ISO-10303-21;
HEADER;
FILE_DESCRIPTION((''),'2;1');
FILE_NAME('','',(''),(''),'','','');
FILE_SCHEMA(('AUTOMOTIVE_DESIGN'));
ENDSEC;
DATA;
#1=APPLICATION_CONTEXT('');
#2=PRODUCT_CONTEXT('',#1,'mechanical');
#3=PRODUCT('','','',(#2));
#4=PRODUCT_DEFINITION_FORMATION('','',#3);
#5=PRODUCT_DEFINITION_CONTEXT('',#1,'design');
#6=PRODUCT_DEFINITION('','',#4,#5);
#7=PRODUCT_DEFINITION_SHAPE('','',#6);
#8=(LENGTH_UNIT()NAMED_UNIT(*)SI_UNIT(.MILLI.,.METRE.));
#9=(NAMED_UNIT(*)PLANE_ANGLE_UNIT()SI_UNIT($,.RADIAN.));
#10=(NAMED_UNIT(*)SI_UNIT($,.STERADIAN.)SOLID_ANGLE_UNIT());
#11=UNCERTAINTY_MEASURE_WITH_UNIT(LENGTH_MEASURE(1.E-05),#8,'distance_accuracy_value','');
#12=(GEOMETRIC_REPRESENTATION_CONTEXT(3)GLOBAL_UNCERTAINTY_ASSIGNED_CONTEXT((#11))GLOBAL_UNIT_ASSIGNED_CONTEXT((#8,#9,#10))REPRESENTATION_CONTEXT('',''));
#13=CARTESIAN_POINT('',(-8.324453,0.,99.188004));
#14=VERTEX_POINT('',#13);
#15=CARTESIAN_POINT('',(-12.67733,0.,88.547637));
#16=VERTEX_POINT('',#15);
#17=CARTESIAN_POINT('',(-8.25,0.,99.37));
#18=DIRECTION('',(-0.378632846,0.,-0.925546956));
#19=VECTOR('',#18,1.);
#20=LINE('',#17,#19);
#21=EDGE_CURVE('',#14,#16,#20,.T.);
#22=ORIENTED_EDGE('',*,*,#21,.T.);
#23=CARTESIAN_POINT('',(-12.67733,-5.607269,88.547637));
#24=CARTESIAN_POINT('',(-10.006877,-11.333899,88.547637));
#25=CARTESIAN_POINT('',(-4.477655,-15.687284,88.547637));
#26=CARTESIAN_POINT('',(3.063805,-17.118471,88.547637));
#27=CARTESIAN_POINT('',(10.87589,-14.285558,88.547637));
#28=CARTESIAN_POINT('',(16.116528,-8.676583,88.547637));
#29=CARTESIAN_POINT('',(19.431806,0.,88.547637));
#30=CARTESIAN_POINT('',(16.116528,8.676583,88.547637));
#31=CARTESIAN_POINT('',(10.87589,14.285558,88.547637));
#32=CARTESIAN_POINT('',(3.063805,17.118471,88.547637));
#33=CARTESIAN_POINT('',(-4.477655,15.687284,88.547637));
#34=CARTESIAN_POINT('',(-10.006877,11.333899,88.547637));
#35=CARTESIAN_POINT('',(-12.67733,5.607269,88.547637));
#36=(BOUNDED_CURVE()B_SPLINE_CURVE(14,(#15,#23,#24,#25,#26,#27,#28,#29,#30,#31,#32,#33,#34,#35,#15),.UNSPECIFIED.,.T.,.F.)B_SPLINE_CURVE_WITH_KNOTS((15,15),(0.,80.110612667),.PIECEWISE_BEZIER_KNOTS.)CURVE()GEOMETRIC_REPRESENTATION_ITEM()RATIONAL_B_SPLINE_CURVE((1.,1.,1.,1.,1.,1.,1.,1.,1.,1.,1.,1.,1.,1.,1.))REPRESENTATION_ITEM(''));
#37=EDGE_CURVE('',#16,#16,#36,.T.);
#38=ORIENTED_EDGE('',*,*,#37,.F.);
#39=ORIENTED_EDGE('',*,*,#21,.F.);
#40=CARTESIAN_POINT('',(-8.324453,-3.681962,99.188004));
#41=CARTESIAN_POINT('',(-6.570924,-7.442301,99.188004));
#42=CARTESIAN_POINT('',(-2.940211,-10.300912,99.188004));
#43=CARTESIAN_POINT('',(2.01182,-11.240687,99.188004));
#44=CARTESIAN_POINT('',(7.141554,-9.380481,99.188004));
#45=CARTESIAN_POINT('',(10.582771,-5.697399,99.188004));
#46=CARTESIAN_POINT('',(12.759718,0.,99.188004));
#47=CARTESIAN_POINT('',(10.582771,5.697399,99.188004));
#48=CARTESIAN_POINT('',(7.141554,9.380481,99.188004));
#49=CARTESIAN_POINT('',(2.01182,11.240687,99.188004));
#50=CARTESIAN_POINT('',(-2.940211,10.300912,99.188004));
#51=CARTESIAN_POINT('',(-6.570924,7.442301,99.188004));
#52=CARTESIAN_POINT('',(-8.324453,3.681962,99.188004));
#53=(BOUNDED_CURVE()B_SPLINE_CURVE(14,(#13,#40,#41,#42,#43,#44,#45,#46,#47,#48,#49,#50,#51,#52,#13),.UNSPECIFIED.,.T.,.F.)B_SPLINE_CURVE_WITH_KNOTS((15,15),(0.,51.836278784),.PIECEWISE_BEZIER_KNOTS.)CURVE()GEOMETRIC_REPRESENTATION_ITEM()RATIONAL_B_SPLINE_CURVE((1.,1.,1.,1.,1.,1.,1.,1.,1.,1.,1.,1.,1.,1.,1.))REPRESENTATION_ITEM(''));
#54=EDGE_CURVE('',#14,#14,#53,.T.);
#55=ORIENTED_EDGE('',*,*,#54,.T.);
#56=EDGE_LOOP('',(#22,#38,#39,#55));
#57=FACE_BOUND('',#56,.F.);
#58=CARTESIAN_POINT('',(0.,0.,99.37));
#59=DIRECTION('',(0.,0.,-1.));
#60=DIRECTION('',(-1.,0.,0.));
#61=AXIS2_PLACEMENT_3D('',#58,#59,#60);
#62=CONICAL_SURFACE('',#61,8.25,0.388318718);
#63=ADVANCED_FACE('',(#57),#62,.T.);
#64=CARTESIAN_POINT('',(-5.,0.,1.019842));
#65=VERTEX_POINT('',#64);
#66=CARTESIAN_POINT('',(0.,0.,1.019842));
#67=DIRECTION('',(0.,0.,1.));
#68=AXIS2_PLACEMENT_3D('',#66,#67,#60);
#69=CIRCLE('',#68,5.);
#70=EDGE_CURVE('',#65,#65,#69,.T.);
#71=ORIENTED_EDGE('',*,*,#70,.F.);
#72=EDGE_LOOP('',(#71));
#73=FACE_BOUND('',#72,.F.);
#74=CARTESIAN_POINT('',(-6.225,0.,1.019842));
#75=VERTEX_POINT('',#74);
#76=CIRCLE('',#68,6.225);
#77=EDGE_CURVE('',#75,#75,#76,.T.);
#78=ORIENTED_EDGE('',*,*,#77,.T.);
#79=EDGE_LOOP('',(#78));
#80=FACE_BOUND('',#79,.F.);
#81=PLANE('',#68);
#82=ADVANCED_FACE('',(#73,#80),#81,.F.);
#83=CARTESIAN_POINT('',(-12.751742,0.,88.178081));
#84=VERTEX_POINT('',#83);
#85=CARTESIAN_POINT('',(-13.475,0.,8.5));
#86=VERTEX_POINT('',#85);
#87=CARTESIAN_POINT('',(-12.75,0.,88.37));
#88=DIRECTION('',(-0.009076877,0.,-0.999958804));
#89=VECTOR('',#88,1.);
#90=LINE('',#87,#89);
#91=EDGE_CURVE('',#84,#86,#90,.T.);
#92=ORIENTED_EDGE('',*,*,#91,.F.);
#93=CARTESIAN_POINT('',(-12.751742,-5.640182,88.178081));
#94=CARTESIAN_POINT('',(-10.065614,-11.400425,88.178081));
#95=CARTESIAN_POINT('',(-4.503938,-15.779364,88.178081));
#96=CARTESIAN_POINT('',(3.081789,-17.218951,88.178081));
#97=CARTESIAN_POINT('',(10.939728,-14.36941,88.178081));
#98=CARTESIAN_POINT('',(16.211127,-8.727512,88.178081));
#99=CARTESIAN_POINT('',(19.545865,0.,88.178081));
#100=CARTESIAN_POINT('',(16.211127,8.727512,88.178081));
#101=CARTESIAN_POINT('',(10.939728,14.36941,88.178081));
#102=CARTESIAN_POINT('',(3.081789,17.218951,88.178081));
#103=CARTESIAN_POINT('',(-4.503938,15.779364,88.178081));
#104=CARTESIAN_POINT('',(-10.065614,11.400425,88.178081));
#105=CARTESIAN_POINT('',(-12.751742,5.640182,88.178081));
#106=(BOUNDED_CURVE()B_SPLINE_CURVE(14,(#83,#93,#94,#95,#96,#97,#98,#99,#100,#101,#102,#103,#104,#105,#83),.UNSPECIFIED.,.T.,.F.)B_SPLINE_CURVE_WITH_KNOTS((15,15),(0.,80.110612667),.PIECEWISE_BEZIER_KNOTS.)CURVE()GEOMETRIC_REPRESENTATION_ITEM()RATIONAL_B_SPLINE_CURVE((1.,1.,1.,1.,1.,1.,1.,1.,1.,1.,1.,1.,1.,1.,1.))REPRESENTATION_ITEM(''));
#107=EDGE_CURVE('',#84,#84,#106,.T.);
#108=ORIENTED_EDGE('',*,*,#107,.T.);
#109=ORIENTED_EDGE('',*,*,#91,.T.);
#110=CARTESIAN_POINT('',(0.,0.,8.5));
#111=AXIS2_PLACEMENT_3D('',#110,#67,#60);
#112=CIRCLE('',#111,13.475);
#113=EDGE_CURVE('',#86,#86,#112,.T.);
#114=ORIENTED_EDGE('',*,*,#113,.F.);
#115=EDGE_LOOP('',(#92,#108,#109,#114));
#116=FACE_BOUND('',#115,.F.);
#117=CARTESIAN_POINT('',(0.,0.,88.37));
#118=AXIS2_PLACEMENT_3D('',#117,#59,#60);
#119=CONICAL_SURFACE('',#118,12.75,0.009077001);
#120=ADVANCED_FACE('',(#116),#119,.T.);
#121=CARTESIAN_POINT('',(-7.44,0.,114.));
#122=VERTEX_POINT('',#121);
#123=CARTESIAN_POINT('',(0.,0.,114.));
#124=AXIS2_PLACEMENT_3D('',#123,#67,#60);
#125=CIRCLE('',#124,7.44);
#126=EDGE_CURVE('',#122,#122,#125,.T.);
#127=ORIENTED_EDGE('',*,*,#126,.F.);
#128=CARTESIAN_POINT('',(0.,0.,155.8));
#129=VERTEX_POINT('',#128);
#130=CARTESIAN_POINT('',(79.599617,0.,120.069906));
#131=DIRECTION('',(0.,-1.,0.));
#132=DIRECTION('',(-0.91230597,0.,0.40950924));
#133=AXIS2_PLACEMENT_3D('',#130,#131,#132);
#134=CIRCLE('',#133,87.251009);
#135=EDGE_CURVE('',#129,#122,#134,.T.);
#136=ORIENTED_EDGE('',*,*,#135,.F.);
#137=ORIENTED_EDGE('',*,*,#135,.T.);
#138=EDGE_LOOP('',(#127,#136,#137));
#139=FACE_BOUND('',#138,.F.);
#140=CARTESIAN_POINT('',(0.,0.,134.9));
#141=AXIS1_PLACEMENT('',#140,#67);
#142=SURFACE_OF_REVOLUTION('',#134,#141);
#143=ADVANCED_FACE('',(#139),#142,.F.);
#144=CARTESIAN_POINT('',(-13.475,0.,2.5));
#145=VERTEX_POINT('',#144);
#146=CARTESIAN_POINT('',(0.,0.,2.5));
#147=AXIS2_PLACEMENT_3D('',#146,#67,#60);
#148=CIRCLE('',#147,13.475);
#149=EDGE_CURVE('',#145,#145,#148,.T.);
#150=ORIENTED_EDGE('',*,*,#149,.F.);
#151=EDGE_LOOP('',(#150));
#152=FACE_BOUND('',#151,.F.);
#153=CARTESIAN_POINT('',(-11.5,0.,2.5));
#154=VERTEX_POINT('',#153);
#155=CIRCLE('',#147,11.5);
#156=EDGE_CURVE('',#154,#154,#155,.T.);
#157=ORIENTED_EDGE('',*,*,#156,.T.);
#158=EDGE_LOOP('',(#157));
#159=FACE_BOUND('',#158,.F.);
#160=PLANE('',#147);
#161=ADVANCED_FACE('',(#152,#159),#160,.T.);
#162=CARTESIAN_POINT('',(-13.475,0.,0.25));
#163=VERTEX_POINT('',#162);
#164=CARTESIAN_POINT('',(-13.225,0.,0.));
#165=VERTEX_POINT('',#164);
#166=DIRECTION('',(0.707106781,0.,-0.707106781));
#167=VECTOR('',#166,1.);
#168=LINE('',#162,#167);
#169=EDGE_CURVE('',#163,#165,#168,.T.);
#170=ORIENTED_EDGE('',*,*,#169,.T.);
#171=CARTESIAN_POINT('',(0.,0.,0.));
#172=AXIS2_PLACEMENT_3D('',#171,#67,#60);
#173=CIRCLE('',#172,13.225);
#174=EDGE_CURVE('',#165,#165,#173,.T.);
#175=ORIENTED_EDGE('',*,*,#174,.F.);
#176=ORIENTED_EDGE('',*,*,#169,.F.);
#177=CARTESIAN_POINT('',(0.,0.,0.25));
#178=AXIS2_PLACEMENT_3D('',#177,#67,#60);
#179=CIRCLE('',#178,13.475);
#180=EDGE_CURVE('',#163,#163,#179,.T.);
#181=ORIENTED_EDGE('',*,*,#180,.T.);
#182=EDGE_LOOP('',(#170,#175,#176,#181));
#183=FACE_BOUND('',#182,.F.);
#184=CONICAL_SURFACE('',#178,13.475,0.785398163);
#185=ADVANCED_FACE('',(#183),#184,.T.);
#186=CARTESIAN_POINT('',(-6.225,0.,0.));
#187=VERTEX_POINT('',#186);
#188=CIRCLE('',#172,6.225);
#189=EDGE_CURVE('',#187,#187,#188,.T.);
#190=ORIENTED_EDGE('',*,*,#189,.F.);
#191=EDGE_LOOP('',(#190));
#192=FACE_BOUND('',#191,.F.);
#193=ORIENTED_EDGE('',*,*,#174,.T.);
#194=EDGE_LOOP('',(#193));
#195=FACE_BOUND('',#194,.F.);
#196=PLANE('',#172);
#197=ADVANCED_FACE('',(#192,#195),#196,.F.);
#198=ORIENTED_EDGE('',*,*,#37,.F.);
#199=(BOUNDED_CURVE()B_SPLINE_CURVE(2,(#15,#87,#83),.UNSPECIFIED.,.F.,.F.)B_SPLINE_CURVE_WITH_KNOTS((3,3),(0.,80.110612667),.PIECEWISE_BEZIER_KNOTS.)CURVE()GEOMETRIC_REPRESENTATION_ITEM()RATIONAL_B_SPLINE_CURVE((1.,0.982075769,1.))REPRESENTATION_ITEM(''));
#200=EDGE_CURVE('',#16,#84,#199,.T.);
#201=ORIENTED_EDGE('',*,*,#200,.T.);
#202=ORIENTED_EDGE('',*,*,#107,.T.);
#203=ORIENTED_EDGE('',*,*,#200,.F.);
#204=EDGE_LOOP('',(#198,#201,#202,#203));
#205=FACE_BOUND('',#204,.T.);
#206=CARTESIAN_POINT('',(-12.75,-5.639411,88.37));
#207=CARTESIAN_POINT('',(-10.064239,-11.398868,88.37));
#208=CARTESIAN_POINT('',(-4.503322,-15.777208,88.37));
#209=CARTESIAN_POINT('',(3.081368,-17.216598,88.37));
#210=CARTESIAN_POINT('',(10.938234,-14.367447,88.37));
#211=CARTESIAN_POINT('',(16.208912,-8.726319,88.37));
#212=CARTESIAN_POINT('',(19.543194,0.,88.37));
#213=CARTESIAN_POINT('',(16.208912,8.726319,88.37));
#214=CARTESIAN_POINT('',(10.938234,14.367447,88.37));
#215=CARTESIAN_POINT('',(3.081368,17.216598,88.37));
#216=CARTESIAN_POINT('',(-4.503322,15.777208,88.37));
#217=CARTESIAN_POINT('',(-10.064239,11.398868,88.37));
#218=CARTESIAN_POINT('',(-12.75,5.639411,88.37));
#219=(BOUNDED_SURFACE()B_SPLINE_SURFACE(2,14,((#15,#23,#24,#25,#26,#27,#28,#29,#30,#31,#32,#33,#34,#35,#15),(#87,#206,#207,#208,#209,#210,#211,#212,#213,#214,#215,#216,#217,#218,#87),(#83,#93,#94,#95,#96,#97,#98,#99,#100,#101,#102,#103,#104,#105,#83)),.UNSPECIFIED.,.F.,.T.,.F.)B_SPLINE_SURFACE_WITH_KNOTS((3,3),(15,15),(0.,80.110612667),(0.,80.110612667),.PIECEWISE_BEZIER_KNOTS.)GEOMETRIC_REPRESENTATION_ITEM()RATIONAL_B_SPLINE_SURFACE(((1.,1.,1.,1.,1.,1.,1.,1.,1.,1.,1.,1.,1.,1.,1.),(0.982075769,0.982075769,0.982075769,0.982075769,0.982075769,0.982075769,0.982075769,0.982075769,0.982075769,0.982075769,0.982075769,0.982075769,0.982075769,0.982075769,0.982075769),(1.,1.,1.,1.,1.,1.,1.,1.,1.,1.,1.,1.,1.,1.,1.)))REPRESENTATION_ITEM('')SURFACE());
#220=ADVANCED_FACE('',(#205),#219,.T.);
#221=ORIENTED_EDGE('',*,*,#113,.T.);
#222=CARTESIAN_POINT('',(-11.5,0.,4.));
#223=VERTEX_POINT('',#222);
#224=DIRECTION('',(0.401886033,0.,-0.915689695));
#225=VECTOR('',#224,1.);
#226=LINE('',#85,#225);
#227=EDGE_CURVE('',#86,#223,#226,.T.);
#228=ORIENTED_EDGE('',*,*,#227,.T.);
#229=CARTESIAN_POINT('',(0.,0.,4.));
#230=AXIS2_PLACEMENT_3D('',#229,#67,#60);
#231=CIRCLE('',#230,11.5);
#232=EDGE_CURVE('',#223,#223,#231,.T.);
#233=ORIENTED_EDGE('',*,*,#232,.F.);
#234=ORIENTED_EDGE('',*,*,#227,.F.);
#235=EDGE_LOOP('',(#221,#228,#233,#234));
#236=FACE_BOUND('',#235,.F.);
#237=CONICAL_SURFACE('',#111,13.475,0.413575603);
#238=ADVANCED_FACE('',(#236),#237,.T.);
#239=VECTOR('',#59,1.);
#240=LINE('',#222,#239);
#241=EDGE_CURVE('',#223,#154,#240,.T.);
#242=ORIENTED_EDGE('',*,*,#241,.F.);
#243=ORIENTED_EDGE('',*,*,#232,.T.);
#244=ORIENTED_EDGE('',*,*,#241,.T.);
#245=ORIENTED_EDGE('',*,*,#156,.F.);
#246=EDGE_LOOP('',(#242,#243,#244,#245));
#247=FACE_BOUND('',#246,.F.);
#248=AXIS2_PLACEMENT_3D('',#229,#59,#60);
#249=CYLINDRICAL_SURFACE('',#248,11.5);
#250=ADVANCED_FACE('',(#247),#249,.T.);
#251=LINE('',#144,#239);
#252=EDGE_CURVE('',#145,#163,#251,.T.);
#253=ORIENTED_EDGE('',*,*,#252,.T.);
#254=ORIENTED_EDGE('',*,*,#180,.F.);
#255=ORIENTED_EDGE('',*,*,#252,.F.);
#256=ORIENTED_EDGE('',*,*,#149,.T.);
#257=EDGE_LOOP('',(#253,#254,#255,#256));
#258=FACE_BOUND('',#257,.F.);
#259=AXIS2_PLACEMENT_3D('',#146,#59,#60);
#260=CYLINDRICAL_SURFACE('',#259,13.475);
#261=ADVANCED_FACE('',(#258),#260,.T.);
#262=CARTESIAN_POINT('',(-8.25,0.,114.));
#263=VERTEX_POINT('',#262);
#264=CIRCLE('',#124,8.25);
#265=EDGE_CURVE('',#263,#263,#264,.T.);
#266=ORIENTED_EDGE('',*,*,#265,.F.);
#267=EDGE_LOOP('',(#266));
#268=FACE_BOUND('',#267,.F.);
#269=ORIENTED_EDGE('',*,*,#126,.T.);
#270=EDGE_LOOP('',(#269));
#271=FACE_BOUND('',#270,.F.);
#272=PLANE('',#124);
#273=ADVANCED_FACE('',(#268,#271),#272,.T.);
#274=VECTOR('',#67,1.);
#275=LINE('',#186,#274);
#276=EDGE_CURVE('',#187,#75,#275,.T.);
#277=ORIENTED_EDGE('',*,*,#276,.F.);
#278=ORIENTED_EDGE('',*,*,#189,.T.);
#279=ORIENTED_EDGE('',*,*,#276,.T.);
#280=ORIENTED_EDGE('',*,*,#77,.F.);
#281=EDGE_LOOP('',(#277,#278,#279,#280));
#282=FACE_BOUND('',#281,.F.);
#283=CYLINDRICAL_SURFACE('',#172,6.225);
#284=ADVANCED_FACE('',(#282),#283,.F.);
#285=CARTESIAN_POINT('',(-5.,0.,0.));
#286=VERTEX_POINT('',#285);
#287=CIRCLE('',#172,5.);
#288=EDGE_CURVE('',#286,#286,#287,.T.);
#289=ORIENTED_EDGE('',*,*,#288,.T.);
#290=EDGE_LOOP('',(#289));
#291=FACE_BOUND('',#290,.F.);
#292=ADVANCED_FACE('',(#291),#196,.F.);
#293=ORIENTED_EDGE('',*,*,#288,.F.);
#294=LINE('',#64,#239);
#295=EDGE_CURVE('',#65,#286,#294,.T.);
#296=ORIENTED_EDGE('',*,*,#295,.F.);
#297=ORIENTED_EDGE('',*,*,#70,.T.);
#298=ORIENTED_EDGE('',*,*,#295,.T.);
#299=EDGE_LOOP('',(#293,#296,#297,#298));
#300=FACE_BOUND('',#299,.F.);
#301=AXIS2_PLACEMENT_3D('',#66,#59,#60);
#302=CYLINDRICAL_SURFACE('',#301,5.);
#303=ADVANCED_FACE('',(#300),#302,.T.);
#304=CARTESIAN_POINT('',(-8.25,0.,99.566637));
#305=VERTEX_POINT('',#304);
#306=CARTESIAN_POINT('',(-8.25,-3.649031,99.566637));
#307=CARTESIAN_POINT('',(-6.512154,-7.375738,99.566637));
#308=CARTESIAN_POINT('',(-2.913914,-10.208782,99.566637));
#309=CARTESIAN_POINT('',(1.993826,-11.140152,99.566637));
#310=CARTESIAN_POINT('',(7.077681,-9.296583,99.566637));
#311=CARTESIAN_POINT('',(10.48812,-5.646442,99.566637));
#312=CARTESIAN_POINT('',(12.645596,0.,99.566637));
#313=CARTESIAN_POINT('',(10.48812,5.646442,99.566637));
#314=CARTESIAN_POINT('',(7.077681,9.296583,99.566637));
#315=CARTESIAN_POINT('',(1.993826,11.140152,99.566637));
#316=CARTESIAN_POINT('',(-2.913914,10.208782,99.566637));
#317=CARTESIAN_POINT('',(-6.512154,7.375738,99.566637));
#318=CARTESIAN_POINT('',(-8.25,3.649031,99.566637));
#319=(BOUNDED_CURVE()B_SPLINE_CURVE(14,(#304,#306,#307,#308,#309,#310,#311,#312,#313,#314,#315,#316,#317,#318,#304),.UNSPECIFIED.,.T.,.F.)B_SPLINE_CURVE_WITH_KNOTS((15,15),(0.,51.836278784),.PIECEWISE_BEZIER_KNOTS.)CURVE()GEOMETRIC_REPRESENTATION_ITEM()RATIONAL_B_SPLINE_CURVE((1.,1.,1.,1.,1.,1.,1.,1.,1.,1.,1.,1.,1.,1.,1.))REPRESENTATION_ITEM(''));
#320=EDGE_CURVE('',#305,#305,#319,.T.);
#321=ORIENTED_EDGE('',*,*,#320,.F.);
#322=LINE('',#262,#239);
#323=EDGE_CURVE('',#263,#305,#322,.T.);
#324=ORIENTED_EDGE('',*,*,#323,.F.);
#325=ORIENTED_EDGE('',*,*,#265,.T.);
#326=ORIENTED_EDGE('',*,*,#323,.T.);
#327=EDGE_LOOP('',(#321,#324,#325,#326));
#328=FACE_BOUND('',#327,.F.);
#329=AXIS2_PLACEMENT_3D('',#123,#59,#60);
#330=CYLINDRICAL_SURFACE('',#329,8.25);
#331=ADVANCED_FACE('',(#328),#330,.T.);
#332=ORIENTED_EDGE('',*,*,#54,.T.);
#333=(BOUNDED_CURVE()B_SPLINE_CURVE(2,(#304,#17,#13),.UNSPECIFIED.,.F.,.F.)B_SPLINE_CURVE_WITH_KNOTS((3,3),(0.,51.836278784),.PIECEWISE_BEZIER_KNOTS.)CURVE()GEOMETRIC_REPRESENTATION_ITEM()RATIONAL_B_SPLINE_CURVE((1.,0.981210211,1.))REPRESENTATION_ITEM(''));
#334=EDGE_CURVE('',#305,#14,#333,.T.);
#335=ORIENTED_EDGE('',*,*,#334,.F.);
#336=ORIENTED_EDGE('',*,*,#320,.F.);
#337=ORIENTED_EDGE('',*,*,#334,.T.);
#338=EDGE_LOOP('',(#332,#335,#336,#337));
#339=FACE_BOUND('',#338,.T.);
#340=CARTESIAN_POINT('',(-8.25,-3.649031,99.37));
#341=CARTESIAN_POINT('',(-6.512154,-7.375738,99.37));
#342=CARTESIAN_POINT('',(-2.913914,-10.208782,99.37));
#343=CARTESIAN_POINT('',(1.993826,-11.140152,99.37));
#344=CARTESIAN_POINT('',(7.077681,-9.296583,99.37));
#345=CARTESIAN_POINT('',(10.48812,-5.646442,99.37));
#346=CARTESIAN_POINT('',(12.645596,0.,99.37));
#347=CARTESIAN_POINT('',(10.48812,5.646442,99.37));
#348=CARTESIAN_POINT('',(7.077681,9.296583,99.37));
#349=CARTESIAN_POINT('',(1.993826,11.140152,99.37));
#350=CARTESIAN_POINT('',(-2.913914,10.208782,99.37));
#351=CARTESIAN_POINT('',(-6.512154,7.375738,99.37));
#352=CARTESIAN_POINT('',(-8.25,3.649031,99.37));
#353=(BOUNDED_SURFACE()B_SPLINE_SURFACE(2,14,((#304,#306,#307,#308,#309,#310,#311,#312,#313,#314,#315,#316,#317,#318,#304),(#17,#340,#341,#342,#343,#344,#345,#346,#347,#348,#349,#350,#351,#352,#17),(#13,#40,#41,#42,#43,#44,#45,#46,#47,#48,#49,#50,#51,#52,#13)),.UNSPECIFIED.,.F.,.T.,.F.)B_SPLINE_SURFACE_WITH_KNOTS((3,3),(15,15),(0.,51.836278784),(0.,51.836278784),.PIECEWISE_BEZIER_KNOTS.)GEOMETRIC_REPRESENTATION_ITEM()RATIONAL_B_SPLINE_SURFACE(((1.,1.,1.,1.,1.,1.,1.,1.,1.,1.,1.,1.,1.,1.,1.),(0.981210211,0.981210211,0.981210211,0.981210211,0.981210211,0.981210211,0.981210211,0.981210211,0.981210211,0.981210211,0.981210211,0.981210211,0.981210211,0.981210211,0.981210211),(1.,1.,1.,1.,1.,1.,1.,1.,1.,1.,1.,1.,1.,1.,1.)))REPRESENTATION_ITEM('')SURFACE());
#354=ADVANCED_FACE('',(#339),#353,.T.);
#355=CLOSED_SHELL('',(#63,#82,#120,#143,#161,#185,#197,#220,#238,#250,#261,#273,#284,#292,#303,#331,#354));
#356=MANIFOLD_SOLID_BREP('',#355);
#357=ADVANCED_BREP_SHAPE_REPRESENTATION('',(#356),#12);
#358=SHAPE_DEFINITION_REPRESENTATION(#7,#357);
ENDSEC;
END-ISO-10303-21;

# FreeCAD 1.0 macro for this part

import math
import FreeCAD as App
import Part
import Sketcher

V = App.Vector
Q = App.Units.Quantity


def edges_at(feature, points):
    """Names of the edges that pass closest to the given points."""
    edges = feature.Shape.Edges
    near = lambda p: min(range(len(edges)), key=lambda i: edges[i].distToShape(Part.Vertex(*p))[0])
    return sorted({f"Edge{near(p) + 1}" for p in points})

doc = App.newDocument("Part")
body = doc.addObject("PartDesign::Body", "Body")

sketch1 = body.newObject("Sketcher::SketchObject", "Sketch")
sketch1.AttachmentSupport = (doc.getObject("XZ_Plane"), [""])
sketch1.MapMode = "FlatFace"
sketch1.addGeometry([
    Part.LineSegment(V(-13.475, 0.25, 0), V(-13.225, 0, 0)),
    Part.LineSegment(V(-13.225, 0, 0), V(-6.225, 0, 0)),
    Part.LineSegment(V(-6.225, 0, 0), V(-6.225, 1.019842, 0)),
    Part.LineSegment(V(-6.225, 1.019842, 0), V(-5, 1.019842, 0)),
    Part.LineSegment(V(-5, 1.019842, 0), V(-5, 0, 0)),
    Part.LineSegment(V(-5, 0, 0), V(0, 0, 0)),
    Part.LineSegment(V(0, 0, 0), V(0, 155.8, 0)),
    Part.ArcOfCircle(Part.Circle(V(79.599617, 120.069906, 0), V(0, 0, 1), 87.251009), math.radians(155.82599), math.radians(183.989193)),
    Part.LineSegment(V(-7.44, 114, 0), V(-8.25, 114, 0)),
    Part.LineSegment(V(-8.25, 114, 0), V(-8.25, 99.37, 0)),
    Part.LineSegment(V(-8.25, 99.37, 0), V(-12.75, 88.37, 0)),
    Part.LineSegment(V(-12.75, 88.37, 0), V(-13.475, 8.5, 0)),
    Part.LineSegment(V(-13.475, 8.5, 0), V(-11.5, 4, 0)),
    Part.LineSegment(V(-11.5, 4, 0), V(-11.5, 2.5, 0)),
    Part.LineSegment(V(-11.5, 2.5, 0), V(-13.475, 2.5, 0)),
    Part.LineSegment(V(-13.475, 2.5, 0), V(-13.475, 0.25, 0)),
], False)
sketch1.addConstraint([
    Sketcher.Constraint("Coincident", 0, 2, 1, 1),
    Sketcher.Constraint("Coincident", 1, 2, 2, 1),
    Sketcher.Constraint("Coincident", 2, 2, 3, 1),
    Sketcher.Constraint("Coincident", 3, 2, 4, 1),
    Sketcher.Constraint("Coincident", 4, 2, 5, 1),
    Sketcher.Constraint("Coincident", 5, 2, 6, 1),
    Sketcher.Constraint("Coincident", 6, 2, 7, 1),
    Sketcher.Constraint("Coincident", 7, 2, 8, 1),
    Sketcher.Constraint("Coincident", 8, 2, 9, 1),
    Sketcher.Constraint("Coincident", 9, 2, 10, 1),
    Sketcher.Constraint("Coincident", 10, 2, 11, 1),
    Sketcher.Constraint("Coincident", 11, 2, 12, 1),
    Sketcher.Constraint("Coincident", 12, 2, 13, 1),
    Sketcher.Constraint("Coincident", 13, 2, 14, 1),
    Sketcher.Constraint("Coincident", 14, 2, 15, 1),
    Sketcher.Constraint("Coincident", 15, 2, 0, 1),
    Sketcher.Constraint("Horizontal", 1),
    Sketcher.Constraint("Vertical", 2),
    Sketcher.Constraint("Horizontal", 3),
    Sketcher.Constraint("Vertical", 4),
    Sketcher.Constraint("Horizontal", 5),
    Sketcher.Constraint("Vertical", 6),
    Sketcher.Constraint("Horizontal", 8),
    Sketcher.Constraint("Vertical", 9),
    Sketcher.Constraint("Vertical", 13),
    Sketcher.Constraint("Horizontal", 14),
    Sketcher.Constraint("Vertical", 15),
    Sketcher.Constraint("Coincident", 5, 2, -1, 1),
    Sketcher.Constraint("PointOnObject", 0, 2, -1),
    Sketcher.Constraint("Vertical", 11, 2, 14, 2),
    Sketcher.Constraint("DistanceX", 1, 1, 1, 2, 7.0),
    Sketcher.Constraint("DistanceX", 5, 1, 5, 2, 5.0),
    Sketcher.Constraint("Angle", 0, Q("-45 deg")),
    Sketcher.Constraint("DistanceY", 6, 1, 6, 2, 155.8),
    Sketcher.Constraint("DistanceY", 13, 2, 13, 1, 1.5),
    Sketcher.Constraint("DistanceY", -1, 1, 7, 2, 114.0),
    Sketcher.Constraint("DistanceY", -1, 1, 12, 2, 4.0),
    Sketcher.Constraint("DistanceY", 10, 2, 9, 2, 11.0),
    Sketcher.Constraint("DistanceY", 13, 2, 11, 2, 6.0),
    Sketcher.Constraint("DistanceX", 8, 2, 8, 1, 0.81),
    Sketcher.Constraint("DistanceY", 9, 2, 9, 1, 14.63),
    Sketcher.Constraint("DistanceY", 15, 2, 15, 1, 2.25),
    Sketcher.Constraint("DistanceX", 12, 2, -1, 1, 11.5),
    Sketcher.Constraint("DistanceX", 10, 2, 9, 2, 4.5),
    Sketcher.Constraint("DistanceX", 3, 1, 3, 2, 1.225),
    Sketcher.Constraint("DistanceX", 7, 2, -1, 1, 7.44),
    Sketcher.Constraint("Radius", 7, 87.251009),
    Sketcher.Constraint("DistanceY", 2, 1, 2, 2, 1.019842),
])
revolution = body.newObject("PartDesign::Revolution", "Revolution")
revolution.Profile = sketch1
revolution.ReferenceAxis = (sketch1, ["V_Axis"])
revolution.Angle = 360
doc.recompute()

fillet = body.newObject("PartDesign::Fillet", "Fillet")
fillet.Base = (revolution, edges_at(revolution, [(8.25, 0, 99.37), (12.75, 0, 88.37)]))
fillet.Radius = 1

doc.recompute()
